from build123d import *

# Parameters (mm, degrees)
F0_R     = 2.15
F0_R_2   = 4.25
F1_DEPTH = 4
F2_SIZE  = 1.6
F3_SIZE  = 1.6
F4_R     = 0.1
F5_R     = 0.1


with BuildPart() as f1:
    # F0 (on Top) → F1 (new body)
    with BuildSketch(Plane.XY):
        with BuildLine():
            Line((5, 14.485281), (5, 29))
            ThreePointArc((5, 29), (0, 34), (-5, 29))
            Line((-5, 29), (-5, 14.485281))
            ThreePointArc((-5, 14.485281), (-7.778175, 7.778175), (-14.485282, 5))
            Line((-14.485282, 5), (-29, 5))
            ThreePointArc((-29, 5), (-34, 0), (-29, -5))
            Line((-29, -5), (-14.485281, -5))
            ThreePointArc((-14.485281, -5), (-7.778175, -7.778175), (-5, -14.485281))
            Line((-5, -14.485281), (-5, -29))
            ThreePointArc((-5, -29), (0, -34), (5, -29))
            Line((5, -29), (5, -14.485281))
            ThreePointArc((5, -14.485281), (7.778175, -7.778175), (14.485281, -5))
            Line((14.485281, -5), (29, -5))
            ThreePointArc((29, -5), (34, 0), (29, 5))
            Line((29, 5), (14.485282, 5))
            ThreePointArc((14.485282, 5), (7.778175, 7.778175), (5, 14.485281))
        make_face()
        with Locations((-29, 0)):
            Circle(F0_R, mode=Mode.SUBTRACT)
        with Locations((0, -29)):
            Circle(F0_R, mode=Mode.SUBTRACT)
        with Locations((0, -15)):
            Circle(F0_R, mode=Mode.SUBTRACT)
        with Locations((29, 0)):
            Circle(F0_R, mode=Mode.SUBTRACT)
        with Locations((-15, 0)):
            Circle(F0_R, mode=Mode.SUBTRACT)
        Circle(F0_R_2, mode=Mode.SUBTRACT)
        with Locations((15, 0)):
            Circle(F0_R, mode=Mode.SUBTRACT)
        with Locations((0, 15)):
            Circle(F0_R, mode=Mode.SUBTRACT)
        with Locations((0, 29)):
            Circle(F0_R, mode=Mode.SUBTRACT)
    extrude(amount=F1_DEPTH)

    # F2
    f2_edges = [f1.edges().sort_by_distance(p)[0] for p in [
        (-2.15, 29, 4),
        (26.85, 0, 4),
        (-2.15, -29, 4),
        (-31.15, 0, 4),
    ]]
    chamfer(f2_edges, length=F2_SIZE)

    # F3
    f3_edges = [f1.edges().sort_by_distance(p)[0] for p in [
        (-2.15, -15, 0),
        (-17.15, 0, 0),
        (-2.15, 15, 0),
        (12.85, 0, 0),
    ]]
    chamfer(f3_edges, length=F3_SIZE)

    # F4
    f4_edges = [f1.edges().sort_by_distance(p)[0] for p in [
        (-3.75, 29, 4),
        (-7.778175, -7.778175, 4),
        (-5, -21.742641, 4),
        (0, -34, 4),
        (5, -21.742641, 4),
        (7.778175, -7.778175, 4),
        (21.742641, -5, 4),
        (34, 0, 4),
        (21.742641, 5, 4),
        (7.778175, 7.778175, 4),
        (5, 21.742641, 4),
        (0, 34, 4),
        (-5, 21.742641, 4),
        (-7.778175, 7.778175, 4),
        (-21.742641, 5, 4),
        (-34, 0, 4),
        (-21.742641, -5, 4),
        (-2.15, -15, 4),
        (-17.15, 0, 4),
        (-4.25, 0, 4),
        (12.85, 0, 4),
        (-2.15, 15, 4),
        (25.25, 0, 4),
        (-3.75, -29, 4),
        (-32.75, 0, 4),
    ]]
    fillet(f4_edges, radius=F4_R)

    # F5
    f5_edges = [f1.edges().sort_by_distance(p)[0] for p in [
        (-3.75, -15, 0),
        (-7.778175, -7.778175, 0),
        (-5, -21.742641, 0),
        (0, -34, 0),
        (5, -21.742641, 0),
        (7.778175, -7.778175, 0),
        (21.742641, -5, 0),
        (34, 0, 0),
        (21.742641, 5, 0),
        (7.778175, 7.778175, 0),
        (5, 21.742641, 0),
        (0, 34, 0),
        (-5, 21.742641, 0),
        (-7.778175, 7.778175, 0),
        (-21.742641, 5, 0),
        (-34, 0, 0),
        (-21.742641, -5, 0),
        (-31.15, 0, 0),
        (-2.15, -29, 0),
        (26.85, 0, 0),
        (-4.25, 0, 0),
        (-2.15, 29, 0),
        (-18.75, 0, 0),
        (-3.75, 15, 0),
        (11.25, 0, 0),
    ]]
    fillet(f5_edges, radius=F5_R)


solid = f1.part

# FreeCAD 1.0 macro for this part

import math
import FreeCAD as App
import Part
import Sketcher

V = App.Vector


def edges_at(feature, points):
    """Names of the edges that pass closest to the given points."""
    edges = feature.Shape.Edges
    near = lambda p: min(range(len(edges)), key=lambda i: edges[i].distToShape(Part.Vertex(*p))[0])
    return sorted({f"Edge{near(p) + 1}" for p in points})

doc = App.newDocument("Part")
body = doc.addObject("PartDesign::Body", "Body")

# Sketch on XY plane
sketch1 = body.newObject("Sketcher::SketchObject", "Sketch")
sketch1.AttachmentSupport = (doc.getObject("XY_Plane"), [""])
sketch1.MapMode = "FlatFace"
sketch1.addGeometry([
    Part.LineSegment(V(5, 14.5, 0), V(5, 29, 0)),  # 0
    Part.ArcOfCircle(Part.Circle(V(0, 29, 0), V(0, 0, 1), 5), math.radians(0), math.radians(180)),  # 1
    Part.LineSegment(V(-5, 29, 0), V(-5, 14.5, 0)),  # 2
    Part.ArcOfCircle(Part.Circle(V(-14.5, 14.5, 0), V(0, 0, 1), 9.5), math.radians(-90), math.radians(0)),  # 3
    Part.LineSegment(V(-14.5, 5, 0), V(-29, 5, 0)),  # 4
    Part.ArcOfCircle(Part.Circle(V(-29, 0, 0), V(0, 0, 1), 5), math.radians(90), math.radians(270)),  # 5
    Part.LineSegment(V(-29, -5, 0), V(-14.5, -5, 0)),  # 6
    Part.ArcOfCircle(Part.Circle(V(-14.5, -14.5, 0), V(0, 0, 1), 9.5), math.radians(0), math.radians(90)),  # 7
    Part.LineSegment(V(-5, -14.5, 0), V(-5, -29, 0)),  # 8
    Part.ArcOfCircle(Part.Circle(V(0, -29, 0), V(0, 0, 1), 5), math.radians(180), math.radians(360)),  # 9
    Part.LineSegment(V(5, -29, 0), V(5, -14.5, 0)),  # 10
    Part.ArcOfCircle(Part.Circle(V(14.5, -14.5, 0), V(0, 0, 1), 9.5), math.radians(90), math.radians(180)),  # 11
    Part.LineSegment(V(14.5, -5, 0), V(29, -5, 0)),  # 12
    Part.ArcOfCircle(Part.Circle(V(29, 0, 0), V(0, 0, 1), 5), math.radians(-90), math.radians(90)),  # 13
    Part.LineSegment(V(29, 5, 0), V(14.5, 5, 0)),  # 14
    Part.ArcOfCircle(Part.Circle(V(14.5, 14.5, 0), V(0, 0, 1), 9.5), math.radians(-180), math.radians(-90)),  # 15
    Part.Circle(V(0, -29, 0), V(0, 0, 1), 2.1),  # 16
    Part.Circle(V(0, -15, 0), V(0, 0, 1), 2.1),  # 17
    Part.Circle(V(-29, 0, 0), V(0, 0, 1), 2.1),  # 18
    Part.Circle(V(-15, 0, 0), V(0, 0, 1), 2.1),  # 19
    Part.Circle(V(0, 0, 0), V(0, 0, 1), 4.2),  # 20
    Part.Circle(V(15, 0, 0), V(0, 0, 1), 2.1),  # 21
    Part.Circle(V(0, 15, 0), V(0, 0, 1), 2.1),  # 22
    Part.Circle(V(29, 0, 0), V(0, 0, 1), 2.1),  # 23
    Part.Circle(V(0, 29, 0), V(0, 0, 1), 2.1),  # 24
], False)
sketch1.addConstraint([
    Sketcher.Constraint("Tangent", 0, 2, 1, 1),
    Sketcher.Constraint("Tangent", 1, 2, 2, 1),
    Sketcher.Constraint("Tangent", 2, 2, 3, 2),
    Sketcher.Constraint("Tangent", 3, 1, 4, 1),
    Sketcher.Constraint("Tangent", 4, 2, 5, 1),
    Sketcher.Constraint("Tangent", 5, 2, 6, 1),
    Sketcher.Constraint("Tangent", 6, 2, 7, 2),
    Sketcher.Constraint("Tangent", 7, 1, 8, 1),
    Sketcher.Constraint("Tangent", 8, 2, 9, 1),
    Sketcher.Constraint("Tangent", 9, 2, 10, 1),
    Sketcher.Constraint("Tangent", 10, 2, 11, 2),
    Sketcher.Constraint("Tangent", 11, 1, 12, 1),
    Sketcher.Constraint("Tangent", 12, 2, 13, 1),
    Sketcher.Constraint("Tangent", 13, 2, 14, 1),
    Sketcher.Constraint("Tangent", 14, 2, 15, 2),
    Sketcher.Constraint("Tangent", 15, 1, 0, 1),
    Sketcher.Constraint("Vertical", 0),
    Sketcher.Constraint("Vertical", 2),
    Sketcher.Constraint("Horizontal", 4),
    Sketcher.Constraint("Horizontal", 6),
    Sketcher.Constraint("Vertical", 8),
    Sketcher.Constraint("Vertical", 10),
    Sketcher.Constraint("Horizontal", 12),
    Sketcher.Constraint("Horizontal", 14),
    Sketcher.Constraint("Coincident", 20, 3, -1, 1),
    Sketcher.Constraint("Coincident", 16, 3, 9, 3),
    Sketcher.Constraint("Coincident", 18, 3, 5, 3),
    Sketcher.Constraint("Coincident", 23, 3, 13, 3),
    Sketcher.Constraint("Coincident", 24, 3, 1, 3),
    Sketcher.Constraint("Equal", 1, 5),
    Sketcher.Constraint("Equal", 3, 7),
    Sketcher.Constraint("Equal", 5, 9),
    Sketcher.Constraint("Equal", 7, 11),
    Sketcher.Constraint("Equal", 9, 13),
    Sketcher.Constraint("Equal", 11, 15),
    Sketcher.Constraint("Equal", 16, 17),
    Sketcher.Constraint("Equal", 17, 18),
    Sketcher.Constraint("Equal", 18, 19),
    Sketcher.Constraint("Equal", 19, 21),
    Sketcher.Constraint("Equal", 21, 22),
    Sketcher.Constraint("Equal", 22, 23),
    Sketcher.Constraint("Equal", 23, 24),
    Sketcher.Constraint("Symmetric", 1, 3, 9, 3, -1, 1),
    Sketcher.Constraint("Symmetric", 5, 3, 13, 3, -1, 1),
    Sketcher.Constraint("Symmetric", 19, 3, 21, 3, -1, 1),
    Sketcher.Constraint("Symmetric", 17, 3, 22, 3, -1, 1),
    Sketcher.Constraint("Symmetric", 7, 3, 11, 3, -2),
    Sketcher.Constraint("PointOnObject", 17, 3, -2),
    Sketcher.Constraint("PointOnObject", 19, 3, -1),
    Sketcher.Constraint("Equal", 14, 0),
    Sketcher.Constraint("Radius", 1, 5.0),
    Sketcher.Constraint("Diameter", 16, 4.3),
    Sketcher.Constraint("Diameter", 20, 8.5),
    Sketcher.Constraint("DistanceY", -1, 1, 1, 3, 29.0),
    Sketcher.Constraint("DistanceY", 17, 3, -1, 1, 15.0),
    Sketcher.Constraint("DistanceX", 19, 3, -1, 1, 15.0),
    Sketcher.Constraint("Radius", 3, 9.485283),
])
pad1 = body.newObject("PartDesign::Pad", "Pad")
pad1.Profile = sketch1
pad1.Length = 4
doc.recompute()

chamfer = body.newObject("PartDesign::Chamfer", "Chamfer")
chamfer.Base = (pad1, edges_at(pad1, [
    (-2.15, 29, 4),
    (26.85, 0, 4),
    (-2.15, -29, 4),
    (-31.15, 0, 4),
]))
chamfer.Size = 1.6
doc.recompute()

chamfer2 = body.newObject("PartDesign::Chamfer", "Chamfer001")
chamfer2.Base = (chamfer, edges_at(chamfer, [
    (-2.15, -15, 0),
    (-17.15, 0, 0),
    (-2.15, 15, 0),
    (12.85, 0, 0),
]))
chamfer2.Size = 1.6
doc.recompute()

fillet = body.newObject("PartDesign::Fillet", "Fillet")
fillet.Base = (chamfer2, edges_at(chamfer2, [
    (-3.75, 29, 4),
    (-7.778, -7.778, 4),
    (-5, -21.743, 4),
    (0, -34, 4),
    (5, -21.743, 4),
    (7.778, -7.778, 4),
    (21.743, -5, 4),
    (34, 0, 4),
    (21.743, 5, 4),
    (7.778, 7.778, 4),
    (5, 21.743, 4),
    (0, 34, 4),
    (-5, 21.743, 4),
    (-7.778, 7.778, 4),
    (-21.743, 5, 4),
    (-34, 0, 4),
    (-21.743, -5, 4),
    (-2.15, -15, 4),
    (-17.15, 0, 4),
    (-4.25, 0, 4),
    (12.85, 0, 4),
    (-2.15, 15, 4),
    (25.25, 0, 4),
    (-3.75, -29, 4),
    (-32.75, 0, 4),
]))
fillet.Radius = 0.1
doc.recompute()

fillet2 = body.newObject("PartDesign::Fillet", "Fillet001")
fillet2.Base = (fillet, edges_at(fillet, [
    (-3.75, -15, 0),
    (-7.778, -7.778, 0),
    (-5, -21.743, 0),
    (0, -34, 0),
    (5, -21.743, 0),
    (7.778, -7.778, 0),
    (21.743, -5, 0),
    (34, 0, 0),
    (21.743, 5, 0),
    (7.778, 7.778, 0),
    (5, 21.743, 0),
    (0, 34, 0),
    (-5, 21.743, 0),
    (-7.778, 7.778, 0),
    (-21.743, 5, 0),
    (-34, 0, 0),
    (-21.743, -5, 0),
    (-31.15, 0, 0),
    (-2.15, -29, 0),
    (26.85, 0, 0),
    (-4.25, 0, 0),
    (-2.15, 29, 0),
    (-18.75, 0, 0),
    (-3.75, 15, 0),
    (11.25, 0, 0),
]))
fillet2.Radius = 0.1

doc.recompute()
